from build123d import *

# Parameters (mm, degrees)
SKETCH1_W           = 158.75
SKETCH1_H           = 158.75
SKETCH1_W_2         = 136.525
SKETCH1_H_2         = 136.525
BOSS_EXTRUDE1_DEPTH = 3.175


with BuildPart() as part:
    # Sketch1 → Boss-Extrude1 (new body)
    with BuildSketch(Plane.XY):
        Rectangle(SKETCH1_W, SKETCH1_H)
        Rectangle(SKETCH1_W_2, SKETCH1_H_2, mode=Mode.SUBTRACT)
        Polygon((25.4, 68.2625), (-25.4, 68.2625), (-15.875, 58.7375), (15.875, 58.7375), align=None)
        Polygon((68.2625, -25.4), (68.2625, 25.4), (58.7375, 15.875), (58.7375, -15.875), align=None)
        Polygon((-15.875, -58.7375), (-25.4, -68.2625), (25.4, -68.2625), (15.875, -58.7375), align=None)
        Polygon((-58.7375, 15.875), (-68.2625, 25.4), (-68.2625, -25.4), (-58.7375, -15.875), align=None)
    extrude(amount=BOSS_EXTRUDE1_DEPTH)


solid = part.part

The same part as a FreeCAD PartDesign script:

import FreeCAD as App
import Part
import Sketcher
from FreeCAD import Vector
Q = App.Units.Quantity


def add_polygon(sketch, points):
    """Adds a closed chain of lines whose ends are joined by coincident constraints."""
    first, n = sketch.GeometryCount, len(points)
    for a, b in zip(points, points[1:] + points[:1]):
        sketch.addGeometry(Part.LineSegment(App.Vector(*a, 0), App.Vector(*b, 0)), False)
    for i in range(n):
        sketch.addConstraint(Sketcher.Constraint("Coincident", first + i, 2, first + (i + 1) % n, 1))

doc = App.newDocument("Part")
params = doc.addObject("Spreadsheet::Sheet", "Params")
for row, (alias, value) in enumerate([
    ("sketch1_width", "6.25 in"),
    ("sketch1_width2", "1.25 in"),
    ("sketch1_width3", "1.6875 in"),
    ("pad1_length", "0.125 in"),
], start=1):
    params.set(f"A{row}", alias)
    params.set(f"B{row}", "=" + value)
    params.setAlias(f"B{row}", alias)

body = doc.addObject("PartDesign::Body", "Body")

# Sketch on XY plane
sketch1 = body.newObject("Sketcher::SketchObject", "Sketch")
sketch1.AttachmentSupport = (doc.getObject("XY_Plane"), [""])
sketch1.MapMode = "FlatFace"
add_polygon(sketch1, [(-79, 79), (-79, -79), (79, -79), (79, 79)])  # lines 0-3
add_polygon(sketch1, [(-25, -68), (-68, -68), (-68, -25), (-59, -16), (-59, 16), (-68, 25), (-68, 68), (-25, 68), (-16, 59), (16, 59), (25, 68), (68, 68), (68, 25), (59, 16), (59, -16), (68, -25), (68, -68), (25, -68), (16, -59), (-16, -59)])  # lines 4-23
sketch1.addConstraint([
    Sketcher.Constraint("Vertical", 0),
    Sketcher.Constraint("Horizontal", 1),
    Sketcher.Constraint("Vertical", 2),
    Sketcher.Constraint("Horizontal", 3),
    Sketcher.Constraint("Horizontal", 4),
    Sketcher.Constraint("Vertical", 5),
    Sketcher.Constraint("Vertical", 7),
    Sketcher.Constraint("Vertical", 9),
    Sketcher.Constraint("Horizontal", 10),
    Sketcher.Constraint("Horizontal", 12),
    Sketcher.Constraint("Horizontal", 14),
    Sketcher.Constraint("Vertical", 15),
    Sketcher.Constraint("Vertical", 17),
    Sketcher.Constraint("Vertical", 19),
    Sketcher.Constraint("Horizontal", 20),
    Sketcher.Constraint("Horizontal", 22),
    Sketcher.Constraint("Symmetric", 0, 2, 2, 2, -1, 1),
    Sketcher.Constraint("Symmetric", 4, 2, 14, 2, -1, 1),
    Sketcher.Constraint("Symmetric", 6, 2, 16, 2, -1, 1),
    Sketcher.Constraint("Symmetric", 8, 2, 18, 2, -1, 1),
    Sketcher.Constraint("Symmetric", 10, 2, 20, 2, -1, 1),
    Sketcher.Constraint("Symmetric", 11, 2, 21, 2, -1, 1),
    Sketcher.Constraint("Symmetric", 10, 2, 13, 2, -2),
    Sketcher.Constraint("Symmetric", 8, 2, 15, 2, -2),
    Sketcher.Constraint("Perpendicular", 6, 8),
    Sketcher.Constraint("Parallel", 8, 11),
    Sketcher.Constraint("Perpendicular", 11, 13),
    Sketcher.Constraint("Parallel", 13, 16),
    Sketcher.Constraint("Perpendicular", 16, 18),
    Sketcher.Constraint("Perpendicular", 21, 23),
    Sketcher.Constraint("Horizontal", 7, 2, 16, 2),
    Sketcher.Constraint("Vertical", 11, 2, 22, 2),
    Sketcher.Constraint("Equal", 3, 0),
    Sketcher.Constraint("Equal", 20, 5),
    Sketcher.Constraint("Equal", 22, 7),
    Sketcher.Constraint("Equal", 8, 11),
    Sketcher.Constraint("DistanceY", 5, 2, -1, 1, Q("1 in")),
    Sketcher.Constraint("DistanceX", 1, 1, 1, 2, Q("6.25 in")),
    Sketcher.Constraint("DistanceX", 12, 1, 12, 2, Q("1.25 in")),
    Sketcher.Constraint("DistanceX", 4, 2, 4, 1, Q("1.6875 in")),
])
sketch1.setExpression("Constraints[61]", "Params.sketch1_width")
sketch1.setExpression("Constraints[62]", "Params.sketch1_width2")
sketch1.setExpression("Constraints[63]", "Params.sketch1_width3")
pad1 = body.newObject("PartDesign::Pad", "Pad")
pad1.Profile = sketch1
pad1.setExpression("Length", "Params.pad1_length")

doc.recompute()
